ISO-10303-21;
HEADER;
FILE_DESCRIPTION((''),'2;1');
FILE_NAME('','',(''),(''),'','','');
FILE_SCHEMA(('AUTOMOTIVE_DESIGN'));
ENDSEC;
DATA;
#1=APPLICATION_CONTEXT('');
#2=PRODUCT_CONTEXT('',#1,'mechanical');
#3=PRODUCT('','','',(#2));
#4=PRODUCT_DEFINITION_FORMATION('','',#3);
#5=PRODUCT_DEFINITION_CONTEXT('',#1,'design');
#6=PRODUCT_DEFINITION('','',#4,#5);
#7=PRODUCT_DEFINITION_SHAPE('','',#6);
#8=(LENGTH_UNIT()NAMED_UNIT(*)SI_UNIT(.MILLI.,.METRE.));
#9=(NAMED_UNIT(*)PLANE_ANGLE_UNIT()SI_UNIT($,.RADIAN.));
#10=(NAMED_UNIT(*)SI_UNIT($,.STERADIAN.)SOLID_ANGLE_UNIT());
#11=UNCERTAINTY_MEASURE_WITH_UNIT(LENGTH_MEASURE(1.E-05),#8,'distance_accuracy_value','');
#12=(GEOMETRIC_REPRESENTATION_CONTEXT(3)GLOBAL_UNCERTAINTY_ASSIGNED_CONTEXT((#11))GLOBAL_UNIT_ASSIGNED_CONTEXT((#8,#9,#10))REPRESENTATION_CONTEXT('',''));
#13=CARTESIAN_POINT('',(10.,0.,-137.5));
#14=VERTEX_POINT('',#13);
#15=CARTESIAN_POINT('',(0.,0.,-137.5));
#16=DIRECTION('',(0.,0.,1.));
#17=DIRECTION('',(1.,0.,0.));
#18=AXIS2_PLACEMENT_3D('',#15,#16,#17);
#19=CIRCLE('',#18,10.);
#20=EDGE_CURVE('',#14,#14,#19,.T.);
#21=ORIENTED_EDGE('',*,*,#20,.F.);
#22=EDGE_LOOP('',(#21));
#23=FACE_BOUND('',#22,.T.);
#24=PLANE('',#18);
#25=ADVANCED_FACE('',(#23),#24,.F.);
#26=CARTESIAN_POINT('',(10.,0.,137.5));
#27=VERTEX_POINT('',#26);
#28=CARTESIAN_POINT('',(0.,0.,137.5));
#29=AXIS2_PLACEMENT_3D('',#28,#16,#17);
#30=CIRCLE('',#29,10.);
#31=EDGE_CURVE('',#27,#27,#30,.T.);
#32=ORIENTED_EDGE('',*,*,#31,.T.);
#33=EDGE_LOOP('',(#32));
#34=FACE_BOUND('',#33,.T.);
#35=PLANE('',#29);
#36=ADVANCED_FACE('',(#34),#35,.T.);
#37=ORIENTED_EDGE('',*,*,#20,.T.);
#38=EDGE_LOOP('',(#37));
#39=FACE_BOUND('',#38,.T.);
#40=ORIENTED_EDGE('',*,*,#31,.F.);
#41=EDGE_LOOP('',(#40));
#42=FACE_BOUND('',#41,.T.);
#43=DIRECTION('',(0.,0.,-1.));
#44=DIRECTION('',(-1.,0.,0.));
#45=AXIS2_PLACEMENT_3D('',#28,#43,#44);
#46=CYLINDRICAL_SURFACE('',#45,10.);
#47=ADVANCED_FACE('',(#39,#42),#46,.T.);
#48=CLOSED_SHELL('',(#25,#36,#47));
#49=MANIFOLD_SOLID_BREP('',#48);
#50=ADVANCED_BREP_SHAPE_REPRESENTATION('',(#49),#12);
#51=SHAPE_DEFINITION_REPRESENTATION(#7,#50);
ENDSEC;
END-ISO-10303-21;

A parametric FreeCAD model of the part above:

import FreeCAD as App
import Part
import Sketcher
from FreeCAD import Vector
Q = App.Units.Quantity

doc = App.newDocument("Part")
body = doc.addObject("PartDesign::Body", "Body")

# Sketch on XY plane
sketch1 = body.newObject("Sketcher::SketchObject", "Sketch")
sketch1.AttachmentSupport = (doc.getObject("XY_Plane"), [""])
sketch1.MapMode = "FlatFace"
sketch1.addGeometry(Part.Circle(Vector(0, 0, 0), Vector(0, 0, 1), 10), False)
sketch1.addConstraint(Sketcher.Constraint("Coincident", 0, 3, -1, 1))
sketch1.addConstraint(Sketcher.Constraint("Diameter", 0, Q("20 mm")))
pad1 = body.newObject("PartDesign::Pad", "Pad")
pad1.Profile = sketch1
pad1.Length = 275
pad1.Midplane = True

doc.recompute()
